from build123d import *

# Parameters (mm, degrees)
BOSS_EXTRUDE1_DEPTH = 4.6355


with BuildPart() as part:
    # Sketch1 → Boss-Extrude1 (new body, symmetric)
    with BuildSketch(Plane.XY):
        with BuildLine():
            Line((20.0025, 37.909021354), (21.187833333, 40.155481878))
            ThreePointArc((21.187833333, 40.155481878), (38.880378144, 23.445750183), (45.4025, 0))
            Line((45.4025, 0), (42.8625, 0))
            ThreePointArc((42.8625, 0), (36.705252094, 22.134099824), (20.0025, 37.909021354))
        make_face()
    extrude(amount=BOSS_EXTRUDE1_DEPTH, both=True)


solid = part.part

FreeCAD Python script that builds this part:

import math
import FreeCAD as App
import Part
import Sketcher
from FreeCAD import Vector
Q = App.Units.Quantity

doc = App.newDocument("Part")
body = doc.addObject("PartDesign::Body", "Body")

sketch1 = body.newObject("Sketcher::SketchObject", "Sketch")
sketch1.AttachmentSupport = (doc.getObject("XY_Plane"), [""])
sketch1.MapMode = "FlatFace"
sketch1.addGeometry([
    Part.LineSegment(Vector(21.187833, 40.155482, 0), Vector(20.0025, 37.909021, 0)),
    Part.ArcOfCircle(Part.Circle(Vector(0, 0, 0), Vector(0, 0, 1), 42.8625), math.radians(0), math.radians(62.181861)),
    Part.LineSegment(Vector(42.8625, 0, 0), Vector(45.4025, 0, 0)),
    Part.ArcOfCircle(Part.Circle(Vector(0, 0, 0), Vector(0, 0, 1), 45.4025), math.radians(0), math.radians(62.181861)),
], False)
sketch1.addConstraint([
    Sketcher.Constraint("Coincident", 0, 2, 1, 2),
    Sketcher.Constraint("Coincident", 1, 1, 2, 1),
    Sketcher.Constraint("Coincident", 2, 2, 3, 1),
    Sketcher.Constraint("Coincident", 3, 2, 0, 1),
    Sketcher.Constraint("Horizontal", 2),
    Sketcher.Constraint("Coincident", 1, 3, -1, 1),
    Sketcher.Constraint("Coincident", 3, 3, -1, 1),
    Sketcher.Constraint("PointOnObject", 1, 1, -1),
    Sketcher.Constraint("DistanceX", 2, 1, 2, 2, Q("0.1 in")),
    Sketcher.Constraint("Radius", 1, Q("1.6875 in")),
    Sketcher.Constraint("DistanceX", 0, 2, 2, 2, Q("1 in")),
    Sketcher.Constraint("DistanceY", -1, 1, 3, 2, 40.155482),
])
pad1 = body.newObject("PartDesign::Pad", "Pad")
pad1.Profile = sketch1
pad1.Length = Q("0.365 in")
pad1.Midplane = True

doc.recompute()
